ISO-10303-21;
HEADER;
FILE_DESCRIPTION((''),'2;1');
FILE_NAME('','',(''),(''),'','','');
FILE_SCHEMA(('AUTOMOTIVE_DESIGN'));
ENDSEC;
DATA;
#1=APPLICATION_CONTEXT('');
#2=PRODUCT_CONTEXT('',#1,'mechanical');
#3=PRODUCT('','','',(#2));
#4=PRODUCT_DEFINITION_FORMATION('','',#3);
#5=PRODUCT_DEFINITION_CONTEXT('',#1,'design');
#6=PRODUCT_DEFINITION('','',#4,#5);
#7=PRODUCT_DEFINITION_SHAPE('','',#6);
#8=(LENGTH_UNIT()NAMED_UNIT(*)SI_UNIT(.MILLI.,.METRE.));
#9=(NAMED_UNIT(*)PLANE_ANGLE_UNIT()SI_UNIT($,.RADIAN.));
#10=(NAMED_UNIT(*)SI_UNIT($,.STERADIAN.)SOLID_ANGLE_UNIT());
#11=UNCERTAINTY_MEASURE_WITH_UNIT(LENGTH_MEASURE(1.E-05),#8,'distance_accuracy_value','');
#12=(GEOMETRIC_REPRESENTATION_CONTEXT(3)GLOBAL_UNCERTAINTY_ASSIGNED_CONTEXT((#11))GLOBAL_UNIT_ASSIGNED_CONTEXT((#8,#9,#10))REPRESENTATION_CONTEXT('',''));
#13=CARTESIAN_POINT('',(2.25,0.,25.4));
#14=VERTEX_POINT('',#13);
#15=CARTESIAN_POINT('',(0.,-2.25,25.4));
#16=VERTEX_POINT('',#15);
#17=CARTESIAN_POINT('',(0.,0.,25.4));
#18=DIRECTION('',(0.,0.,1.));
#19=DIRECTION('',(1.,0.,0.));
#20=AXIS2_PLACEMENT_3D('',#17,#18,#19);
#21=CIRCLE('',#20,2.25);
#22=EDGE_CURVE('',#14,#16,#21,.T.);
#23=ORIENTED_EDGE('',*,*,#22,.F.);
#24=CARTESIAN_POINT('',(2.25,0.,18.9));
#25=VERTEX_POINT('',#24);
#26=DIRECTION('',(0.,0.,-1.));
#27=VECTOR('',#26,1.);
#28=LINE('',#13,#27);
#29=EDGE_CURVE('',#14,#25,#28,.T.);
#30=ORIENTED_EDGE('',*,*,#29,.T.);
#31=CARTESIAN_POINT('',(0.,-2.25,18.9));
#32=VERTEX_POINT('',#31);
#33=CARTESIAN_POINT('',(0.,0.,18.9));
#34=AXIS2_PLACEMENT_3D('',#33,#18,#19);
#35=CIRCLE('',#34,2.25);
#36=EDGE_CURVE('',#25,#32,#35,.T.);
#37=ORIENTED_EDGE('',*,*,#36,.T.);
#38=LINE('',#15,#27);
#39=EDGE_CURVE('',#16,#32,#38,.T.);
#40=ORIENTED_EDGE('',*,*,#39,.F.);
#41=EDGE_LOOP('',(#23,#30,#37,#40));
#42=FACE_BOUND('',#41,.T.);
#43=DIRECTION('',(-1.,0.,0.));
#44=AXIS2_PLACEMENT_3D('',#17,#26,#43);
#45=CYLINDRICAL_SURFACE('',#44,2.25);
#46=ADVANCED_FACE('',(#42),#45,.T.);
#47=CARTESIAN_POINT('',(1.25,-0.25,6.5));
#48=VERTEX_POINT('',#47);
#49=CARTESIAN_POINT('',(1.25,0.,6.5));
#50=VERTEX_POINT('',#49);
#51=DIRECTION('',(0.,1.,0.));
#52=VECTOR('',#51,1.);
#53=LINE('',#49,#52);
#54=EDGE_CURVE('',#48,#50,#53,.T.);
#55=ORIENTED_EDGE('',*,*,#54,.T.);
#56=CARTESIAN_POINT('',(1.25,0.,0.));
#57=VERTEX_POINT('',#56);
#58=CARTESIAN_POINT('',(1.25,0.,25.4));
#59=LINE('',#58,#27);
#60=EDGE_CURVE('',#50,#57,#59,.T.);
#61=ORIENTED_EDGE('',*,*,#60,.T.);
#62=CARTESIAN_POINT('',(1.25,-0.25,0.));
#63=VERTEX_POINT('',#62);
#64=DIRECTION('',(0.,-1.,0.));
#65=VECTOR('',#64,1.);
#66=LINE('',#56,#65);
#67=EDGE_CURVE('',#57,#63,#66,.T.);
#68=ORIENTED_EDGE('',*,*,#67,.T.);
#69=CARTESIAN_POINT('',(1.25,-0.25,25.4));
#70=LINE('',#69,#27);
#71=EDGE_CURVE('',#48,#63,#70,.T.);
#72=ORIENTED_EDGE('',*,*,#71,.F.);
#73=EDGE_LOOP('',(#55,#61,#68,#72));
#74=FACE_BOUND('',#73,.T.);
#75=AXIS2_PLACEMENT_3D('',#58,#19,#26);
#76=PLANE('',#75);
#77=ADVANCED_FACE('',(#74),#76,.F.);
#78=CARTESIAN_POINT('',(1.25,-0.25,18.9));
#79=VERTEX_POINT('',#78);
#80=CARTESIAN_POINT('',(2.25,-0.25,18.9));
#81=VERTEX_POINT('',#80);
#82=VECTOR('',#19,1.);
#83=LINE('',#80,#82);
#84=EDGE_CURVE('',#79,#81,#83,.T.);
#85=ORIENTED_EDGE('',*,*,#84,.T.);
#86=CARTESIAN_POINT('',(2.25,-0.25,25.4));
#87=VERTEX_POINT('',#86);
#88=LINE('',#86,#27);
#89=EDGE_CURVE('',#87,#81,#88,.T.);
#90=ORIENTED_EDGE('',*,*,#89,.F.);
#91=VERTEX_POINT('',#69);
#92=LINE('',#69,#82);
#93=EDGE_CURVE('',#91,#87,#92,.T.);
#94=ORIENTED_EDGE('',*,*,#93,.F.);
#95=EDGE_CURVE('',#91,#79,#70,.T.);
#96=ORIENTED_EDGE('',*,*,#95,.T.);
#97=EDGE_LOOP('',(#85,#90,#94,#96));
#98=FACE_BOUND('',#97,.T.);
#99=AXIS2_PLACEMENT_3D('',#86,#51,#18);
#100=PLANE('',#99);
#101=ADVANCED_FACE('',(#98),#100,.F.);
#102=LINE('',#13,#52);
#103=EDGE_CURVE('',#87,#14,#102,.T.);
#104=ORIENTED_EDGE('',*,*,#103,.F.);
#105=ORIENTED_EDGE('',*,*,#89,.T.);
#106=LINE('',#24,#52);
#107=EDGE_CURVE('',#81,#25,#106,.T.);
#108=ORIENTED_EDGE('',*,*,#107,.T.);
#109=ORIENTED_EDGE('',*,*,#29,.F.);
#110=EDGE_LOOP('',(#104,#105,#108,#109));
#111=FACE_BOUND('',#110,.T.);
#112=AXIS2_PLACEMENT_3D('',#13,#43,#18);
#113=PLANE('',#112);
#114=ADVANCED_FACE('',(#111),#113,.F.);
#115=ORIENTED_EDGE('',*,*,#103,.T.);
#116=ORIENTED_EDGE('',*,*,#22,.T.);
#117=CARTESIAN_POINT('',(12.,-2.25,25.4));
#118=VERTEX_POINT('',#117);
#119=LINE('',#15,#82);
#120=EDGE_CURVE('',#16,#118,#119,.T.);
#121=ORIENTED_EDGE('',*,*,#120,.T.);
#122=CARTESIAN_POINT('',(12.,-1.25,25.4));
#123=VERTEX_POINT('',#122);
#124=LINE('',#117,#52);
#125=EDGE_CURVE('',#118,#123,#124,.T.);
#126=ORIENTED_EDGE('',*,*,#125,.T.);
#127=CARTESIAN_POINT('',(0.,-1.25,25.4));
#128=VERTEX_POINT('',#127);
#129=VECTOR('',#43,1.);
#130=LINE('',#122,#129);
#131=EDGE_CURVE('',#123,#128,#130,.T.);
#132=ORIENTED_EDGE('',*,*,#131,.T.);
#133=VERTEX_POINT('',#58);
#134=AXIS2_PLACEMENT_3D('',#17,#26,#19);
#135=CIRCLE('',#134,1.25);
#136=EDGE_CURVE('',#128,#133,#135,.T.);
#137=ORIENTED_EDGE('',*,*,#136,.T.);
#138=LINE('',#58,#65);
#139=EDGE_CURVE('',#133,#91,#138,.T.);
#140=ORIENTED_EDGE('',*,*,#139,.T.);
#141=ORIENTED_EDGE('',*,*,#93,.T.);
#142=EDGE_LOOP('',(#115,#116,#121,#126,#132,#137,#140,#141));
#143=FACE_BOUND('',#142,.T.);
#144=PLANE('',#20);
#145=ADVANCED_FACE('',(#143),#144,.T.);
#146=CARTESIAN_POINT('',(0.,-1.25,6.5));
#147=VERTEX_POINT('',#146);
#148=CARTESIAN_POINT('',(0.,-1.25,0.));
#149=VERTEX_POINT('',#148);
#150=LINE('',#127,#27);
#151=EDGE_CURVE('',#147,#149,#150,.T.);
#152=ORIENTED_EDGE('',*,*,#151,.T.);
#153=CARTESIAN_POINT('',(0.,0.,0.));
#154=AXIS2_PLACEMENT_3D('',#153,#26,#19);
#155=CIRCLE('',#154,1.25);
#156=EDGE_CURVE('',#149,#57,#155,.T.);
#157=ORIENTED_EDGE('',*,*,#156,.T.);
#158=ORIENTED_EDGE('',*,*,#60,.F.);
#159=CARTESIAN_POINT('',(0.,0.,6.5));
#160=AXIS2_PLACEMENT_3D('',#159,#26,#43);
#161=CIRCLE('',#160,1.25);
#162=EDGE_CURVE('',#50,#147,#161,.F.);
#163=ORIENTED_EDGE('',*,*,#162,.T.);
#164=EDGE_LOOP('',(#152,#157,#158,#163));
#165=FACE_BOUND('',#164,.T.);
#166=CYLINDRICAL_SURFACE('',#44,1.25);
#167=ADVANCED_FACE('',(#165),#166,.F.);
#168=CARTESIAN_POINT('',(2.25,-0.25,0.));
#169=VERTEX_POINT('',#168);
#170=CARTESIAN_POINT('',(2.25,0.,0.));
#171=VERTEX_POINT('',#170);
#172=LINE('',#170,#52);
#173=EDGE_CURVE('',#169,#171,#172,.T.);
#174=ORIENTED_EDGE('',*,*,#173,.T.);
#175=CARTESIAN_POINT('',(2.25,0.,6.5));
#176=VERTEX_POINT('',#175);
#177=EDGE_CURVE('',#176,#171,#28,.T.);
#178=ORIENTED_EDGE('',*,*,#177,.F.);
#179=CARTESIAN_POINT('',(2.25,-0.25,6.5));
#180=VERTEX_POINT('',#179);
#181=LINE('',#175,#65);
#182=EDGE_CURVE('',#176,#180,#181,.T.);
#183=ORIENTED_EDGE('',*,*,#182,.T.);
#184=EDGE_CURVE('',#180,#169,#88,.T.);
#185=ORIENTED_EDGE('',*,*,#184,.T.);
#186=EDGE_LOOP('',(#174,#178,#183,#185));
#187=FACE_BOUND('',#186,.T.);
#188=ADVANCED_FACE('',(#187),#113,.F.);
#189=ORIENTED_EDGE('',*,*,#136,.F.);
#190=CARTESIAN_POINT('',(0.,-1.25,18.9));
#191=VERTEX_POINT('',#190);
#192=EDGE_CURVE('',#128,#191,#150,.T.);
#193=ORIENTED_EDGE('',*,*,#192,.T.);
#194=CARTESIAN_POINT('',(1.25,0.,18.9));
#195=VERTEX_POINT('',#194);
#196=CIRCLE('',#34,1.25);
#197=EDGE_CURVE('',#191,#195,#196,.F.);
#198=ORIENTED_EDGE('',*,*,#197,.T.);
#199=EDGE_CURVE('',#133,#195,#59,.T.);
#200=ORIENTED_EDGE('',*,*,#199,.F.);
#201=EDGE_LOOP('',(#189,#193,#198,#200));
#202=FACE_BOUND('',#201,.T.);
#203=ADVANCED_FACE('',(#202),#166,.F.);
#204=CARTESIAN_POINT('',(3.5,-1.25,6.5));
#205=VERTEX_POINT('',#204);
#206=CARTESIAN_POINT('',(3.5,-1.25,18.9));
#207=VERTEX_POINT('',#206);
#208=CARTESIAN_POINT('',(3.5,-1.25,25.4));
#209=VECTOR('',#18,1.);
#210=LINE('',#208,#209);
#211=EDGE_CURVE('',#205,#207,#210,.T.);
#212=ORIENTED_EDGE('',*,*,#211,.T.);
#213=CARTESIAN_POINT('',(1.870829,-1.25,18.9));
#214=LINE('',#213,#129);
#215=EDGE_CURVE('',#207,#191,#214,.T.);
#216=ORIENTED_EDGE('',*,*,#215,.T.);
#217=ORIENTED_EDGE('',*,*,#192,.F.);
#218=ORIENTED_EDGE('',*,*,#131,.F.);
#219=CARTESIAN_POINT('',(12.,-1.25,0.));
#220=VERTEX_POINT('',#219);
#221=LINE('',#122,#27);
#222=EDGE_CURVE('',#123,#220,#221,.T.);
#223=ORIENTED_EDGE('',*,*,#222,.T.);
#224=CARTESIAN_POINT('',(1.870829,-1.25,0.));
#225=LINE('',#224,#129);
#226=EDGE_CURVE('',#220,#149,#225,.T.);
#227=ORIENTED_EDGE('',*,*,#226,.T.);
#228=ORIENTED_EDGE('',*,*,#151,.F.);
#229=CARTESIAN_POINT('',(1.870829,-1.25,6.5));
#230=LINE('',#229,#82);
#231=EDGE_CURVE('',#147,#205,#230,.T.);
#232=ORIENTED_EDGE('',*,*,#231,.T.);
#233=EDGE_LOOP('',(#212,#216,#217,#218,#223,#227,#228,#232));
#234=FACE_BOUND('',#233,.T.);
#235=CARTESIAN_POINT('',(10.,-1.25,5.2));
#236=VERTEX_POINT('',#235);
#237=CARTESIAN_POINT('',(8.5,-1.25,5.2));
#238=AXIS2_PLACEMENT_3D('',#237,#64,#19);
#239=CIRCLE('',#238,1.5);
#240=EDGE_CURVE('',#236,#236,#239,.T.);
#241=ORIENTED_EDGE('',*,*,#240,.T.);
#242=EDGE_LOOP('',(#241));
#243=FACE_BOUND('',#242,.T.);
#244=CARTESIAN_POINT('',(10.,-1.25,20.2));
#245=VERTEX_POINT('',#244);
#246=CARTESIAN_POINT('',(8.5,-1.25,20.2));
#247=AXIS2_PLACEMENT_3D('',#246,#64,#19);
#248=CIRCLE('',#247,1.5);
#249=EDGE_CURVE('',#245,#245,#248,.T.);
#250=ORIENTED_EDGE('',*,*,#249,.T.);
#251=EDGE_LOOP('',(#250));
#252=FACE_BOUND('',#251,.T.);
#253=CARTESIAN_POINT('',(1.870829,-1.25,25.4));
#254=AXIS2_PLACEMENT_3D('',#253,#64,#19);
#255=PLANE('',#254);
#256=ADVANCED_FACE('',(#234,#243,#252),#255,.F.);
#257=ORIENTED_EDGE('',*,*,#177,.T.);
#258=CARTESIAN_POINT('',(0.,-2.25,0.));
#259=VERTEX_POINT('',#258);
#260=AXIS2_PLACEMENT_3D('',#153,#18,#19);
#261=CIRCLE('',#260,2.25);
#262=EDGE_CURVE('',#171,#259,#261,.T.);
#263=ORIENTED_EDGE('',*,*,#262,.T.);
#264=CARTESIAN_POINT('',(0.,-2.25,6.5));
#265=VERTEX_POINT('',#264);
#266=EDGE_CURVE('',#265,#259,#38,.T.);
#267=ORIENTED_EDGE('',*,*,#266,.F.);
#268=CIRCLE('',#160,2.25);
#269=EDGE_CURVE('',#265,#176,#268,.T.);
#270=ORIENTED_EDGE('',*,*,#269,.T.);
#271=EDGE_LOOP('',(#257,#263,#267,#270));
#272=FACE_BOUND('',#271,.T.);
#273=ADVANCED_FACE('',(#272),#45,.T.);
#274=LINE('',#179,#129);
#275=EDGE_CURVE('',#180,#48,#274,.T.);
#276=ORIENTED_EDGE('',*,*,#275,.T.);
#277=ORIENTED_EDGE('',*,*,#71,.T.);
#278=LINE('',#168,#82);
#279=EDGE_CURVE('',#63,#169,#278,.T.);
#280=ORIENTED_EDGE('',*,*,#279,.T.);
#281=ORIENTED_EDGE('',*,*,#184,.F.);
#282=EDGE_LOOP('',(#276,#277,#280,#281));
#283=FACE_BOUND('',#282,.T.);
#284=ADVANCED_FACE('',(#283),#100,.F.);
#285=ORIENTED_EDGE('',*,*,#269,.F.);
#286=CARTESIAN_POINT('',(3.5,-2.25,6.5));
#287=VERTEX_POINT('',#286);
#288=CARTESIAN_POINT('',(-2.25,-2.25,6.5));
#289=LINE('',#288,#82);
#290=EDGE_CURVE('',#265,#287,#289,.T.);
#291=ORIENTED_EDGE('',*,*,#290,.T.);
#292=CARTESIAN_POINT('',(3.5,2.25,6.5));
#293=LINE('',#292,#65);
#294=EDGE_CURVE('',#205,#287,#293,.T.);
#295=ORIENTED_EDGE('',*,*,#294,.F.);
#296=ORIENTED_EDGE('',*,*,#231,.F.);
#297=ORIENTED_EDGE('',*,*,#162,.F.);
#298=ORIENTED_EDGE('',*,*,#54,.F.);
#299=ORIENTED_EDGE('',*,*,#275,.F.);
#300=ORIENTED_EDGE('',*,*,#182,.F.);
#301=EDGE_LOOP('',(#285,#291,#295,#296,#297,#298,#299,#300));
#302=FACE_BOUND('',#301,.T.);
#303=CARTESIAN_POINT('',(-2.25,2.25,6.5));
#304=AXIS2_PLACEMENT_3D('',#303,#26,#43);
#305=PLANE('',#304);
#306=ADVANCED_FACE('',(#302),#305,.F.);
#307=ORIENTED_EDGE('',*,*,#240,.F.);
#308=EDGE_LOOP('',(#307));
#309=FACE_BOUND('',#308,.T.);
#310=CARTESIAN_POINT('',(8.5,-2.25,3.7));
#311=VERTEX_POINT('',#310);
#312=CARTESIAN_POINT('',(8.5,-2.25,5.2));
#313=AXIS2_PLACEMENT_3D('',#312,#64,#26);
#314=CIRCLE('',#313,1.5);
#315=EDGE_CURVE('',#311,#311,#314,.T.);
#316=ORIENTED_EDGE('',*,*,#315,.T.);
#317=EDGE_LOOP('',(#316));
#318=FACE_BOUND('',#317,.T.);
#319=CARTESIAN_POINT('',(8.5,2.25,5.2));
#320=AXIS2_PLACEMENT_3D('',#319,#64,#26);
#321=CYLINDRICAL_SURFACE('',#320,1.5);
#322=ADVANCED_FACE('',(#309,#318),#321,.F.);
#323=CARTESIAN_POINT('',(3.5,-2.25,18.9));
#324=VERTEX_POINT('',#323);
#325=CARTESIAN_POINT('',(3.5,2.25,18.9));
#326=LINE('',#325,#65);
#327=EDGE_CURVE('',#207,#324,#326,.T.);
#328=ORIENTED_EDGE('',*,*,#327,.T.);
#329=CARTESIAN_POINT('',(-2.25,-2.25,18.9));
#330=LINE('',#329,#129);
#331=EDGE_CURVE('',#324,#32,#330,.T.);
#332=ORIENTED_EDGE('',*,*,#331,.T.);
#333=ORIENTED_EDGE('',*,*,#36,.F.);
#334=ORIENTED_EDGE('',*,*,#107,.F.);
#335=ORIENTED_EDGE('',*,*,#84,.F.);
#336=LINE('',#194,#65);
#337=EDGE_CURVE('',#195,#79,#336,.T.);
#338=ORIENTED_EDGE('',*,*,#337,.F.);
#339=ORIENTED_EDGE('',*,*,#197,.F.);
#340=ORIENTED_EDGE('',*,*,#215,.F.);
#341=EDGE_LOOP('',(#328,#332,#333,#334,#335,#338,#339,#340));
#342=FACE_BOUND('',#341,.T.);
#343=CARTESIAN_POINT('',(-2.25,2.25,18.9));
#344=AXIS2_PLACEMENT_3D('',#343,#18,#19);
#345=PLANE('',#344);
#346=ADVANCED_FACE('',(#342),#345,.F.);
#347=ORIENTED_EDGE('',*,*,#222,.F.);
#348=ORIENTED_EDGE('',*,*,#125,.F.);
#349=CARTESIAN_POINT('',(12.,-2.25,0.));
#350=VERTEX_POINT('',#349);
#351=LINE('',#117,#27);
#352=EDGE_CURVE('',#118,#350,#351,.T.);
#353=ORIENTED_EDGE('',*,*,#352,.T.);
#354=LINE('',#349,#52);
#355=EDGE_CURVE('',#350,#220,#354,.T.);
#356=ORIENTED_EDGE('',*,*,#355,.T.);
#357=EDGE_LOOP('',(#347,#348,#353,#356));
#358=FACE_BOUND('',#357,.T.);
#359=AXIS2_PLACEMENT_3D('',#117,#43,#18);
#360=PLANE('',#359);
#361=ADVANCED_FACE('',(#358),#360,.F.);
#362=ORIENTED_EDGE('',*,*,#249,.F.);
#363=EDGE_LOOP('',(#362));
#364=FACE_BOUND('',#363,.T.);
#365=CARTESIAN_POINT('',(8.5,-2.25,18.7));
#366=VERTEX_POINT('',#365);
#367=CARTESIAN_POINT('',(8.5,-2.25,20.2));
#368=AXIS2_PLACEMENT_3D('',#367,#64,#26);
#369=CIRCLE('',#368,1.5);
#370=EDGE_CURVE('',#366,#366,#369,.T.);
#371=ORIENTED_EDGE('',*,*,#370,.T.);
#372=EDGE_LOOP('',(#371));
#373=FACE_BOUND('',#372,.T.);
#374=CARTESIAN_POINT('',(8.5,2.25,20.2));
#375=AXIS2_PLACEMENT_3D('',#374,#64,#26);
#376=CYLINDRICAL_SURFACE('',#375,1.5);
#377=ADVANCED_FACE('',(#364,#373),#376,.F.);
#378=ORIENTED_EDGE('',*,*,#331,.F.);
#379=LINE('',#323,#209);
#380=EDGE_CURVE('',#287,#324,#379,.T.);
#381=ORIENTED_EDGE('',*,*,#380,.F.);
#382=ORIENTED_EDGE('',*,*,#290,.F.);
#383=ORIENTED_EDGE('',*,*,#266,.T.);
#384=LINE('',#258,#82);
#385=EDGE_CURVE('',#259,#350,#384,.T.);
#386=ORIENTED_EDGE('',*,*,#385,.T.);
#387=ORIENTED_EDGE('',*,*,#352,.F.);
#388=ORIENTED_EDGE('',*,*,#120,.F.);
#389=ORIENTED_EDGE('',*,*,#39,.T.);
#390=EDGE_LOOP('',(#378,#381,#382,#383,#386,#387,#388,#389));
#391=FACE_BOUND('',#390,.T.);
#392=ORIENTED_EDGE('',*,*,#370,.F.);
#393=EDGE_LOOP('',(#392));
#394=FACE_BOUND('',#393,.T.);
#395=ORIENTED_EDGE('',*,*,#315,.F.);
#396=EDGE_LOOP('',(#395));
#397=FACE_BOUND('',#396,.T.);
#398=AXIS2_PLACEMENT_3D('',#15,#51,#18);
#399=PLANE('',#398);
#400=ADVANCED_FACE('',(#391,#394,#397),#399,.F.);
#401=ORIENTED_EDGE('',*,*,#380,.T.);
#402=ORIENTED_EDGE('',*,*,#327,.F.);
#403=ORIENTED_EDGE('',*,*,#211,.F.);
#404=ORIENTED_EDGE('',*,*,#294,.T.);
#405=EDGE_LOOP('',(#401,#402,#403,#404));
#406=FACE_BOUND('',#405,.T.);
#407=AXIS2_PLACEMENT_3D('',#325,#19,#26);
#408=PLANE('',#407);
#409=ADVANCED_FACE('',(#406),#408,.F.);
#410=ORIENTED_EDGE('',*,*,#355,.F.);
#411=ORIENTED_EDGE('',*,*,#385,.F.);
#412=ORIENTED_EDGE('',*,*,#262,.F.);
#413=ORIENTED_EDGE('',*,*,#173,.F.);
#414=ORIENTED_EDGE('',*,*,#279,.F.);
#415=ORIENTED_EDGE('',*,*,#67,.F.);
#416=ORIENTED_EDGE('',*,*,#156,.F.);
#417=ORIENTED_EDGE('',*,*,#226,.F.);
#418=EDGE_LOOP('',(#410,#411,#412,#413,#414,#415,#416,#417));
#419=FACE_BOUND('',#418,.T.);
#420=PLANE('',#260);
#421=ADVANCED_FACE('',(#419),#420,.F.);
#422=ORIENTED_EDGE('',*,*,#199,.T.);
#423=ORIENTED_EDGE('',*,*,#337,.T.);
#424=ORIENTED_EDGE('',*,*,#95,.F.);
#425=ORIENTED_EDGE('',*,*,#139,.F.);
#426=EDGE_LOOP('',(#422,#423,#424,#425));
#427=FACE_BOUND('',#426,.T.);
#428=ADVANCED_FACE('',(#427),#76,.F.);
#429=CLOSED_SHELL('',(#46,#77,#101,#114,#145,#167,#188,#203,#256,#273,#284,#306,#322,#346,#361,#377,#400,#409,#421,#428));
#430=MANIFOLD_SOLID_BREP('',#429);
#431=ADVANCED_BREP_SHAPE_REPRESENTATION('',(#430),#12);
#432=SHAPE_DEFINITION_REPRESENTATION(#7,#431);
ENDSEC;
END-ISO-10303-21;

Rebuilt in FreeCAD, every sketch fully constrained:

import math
import FreeCAD as App
import Part
import Sketcher

V = App.Vector


def add_polygon(sketch, points):
    """Adds a closed chain of lines whose ends are joined by coincident constraints."""
    first, n = sketch.GeometryCount, len(points)
    for a, b in zip(points, points[1:] + points[:1]):
        sketch.addGeometry(Part.LineSegment(App.Vector(*a, 0), App.Vector(*b, 0)), False)
    for i in range(n):
        sketch.addConstraint(Sketcher.Constraint("Coincident", first + i, 2, first + (i + 1) % n, 1))

doc = App.newDocument("Part")
params = doc.addObject("Spreadsheet::Sheet", "Params")
for row, (alias, value) in enumerate([
    ("sketch1_width", "12 mm"),
    ("sketch1_width2", "1 mm"),
    ("sketch1_radius", "1.25 mm"),
    ("pad1_length", "25.4 mm"),
    ("sketch2_diameter", "3 mm"),
    ("sketch2_height", "12.4 mm"),
    ("sketch2_width", "5.75 mm"),
], start=1):
    params.set(f"A{row}", alias)
    params.set(f"B{row}", "=" + value)
    params.setAlias(f"B{row}", alias)

body = doc.addObject("PartDesign::Body", "Body")

# Sketch on XY plane
sketch1 = body.newObject("Sketcher::SketchObject", "Sketch")
sketch1.AttachmentSupport = (doc.getObject("XY_Plane"), [""])
sketch1.MapMode = "FlatFace"
sketch1.addGeometry([
    Part.LineSegment(V(0, -2.25, 0), V(12, -2.25, 0)),  # 0
    Part.LineSegment(V(12, -2.25, 0), V(12, -1.25, 0)),  # 1
    Part.LineSegment(V(12, -1.25, 0), V(0, -1.25, 0)),  # 2
    Part.ArcOfCircle(Part.Circle(V(0, 0, 0), V(0, 0, 1), 1.25), math.radians(0), math.radians(270)),  # 3
    Part.LineSegment(V(1.25, 0, 0), V(1.25, -0.25, 0)),  # 4
    Part.LineSegment(V(1.25, -0.25, 0), V(2.25, -0.25, 0)),  # 5
    Part.LineSegment(V(2.25, -0.25, 0), V(2.25, 0, 0)),  # 6
    Part.ArcOfCircle(Part.Circle(V(0, 0, 0), V(0, 0, 1), 2.25), math.radians(0), math.radians(270)),  # 7
], False)
sketch1.addConstraint([
    Sketcher.Constraint("Coincident", 0, 2, 1, 1),
    Sketcher.Constraint("Coincident", 1, 2, 2, 1),
    Sketcher.Constraint("Tangent", 2, 2, 3, 2),
    Sketcher.Constraint("Tangent", 3, 1, 4, 1),
    Sketcher.Constraint("Coincident", 4, 2, 5, 1),
    Sketcher.Constraint("Coincident", 5, 2, 6, 1),
    Sketcher.Constraint("Tangent", 6, 2, 7, 1),
    Sketcher.Constraint("Tangent", 7, 2, 0, 1),
    Sketcher.Constraint("Horizontal", 0),
    Sketcher.Constraint("Vertical", 1),
    Sketcher.Constraint("Horizontal", 2),
    Sketcher.Constraint("Vertical", 4),
    Sketcher.Constraint("Horizontal", 5),
    Sketcher.Constraint("Vertical", 6),
    Sketcher.Constraint("Coincident", 3, 3, -1, 1),
    Sketcher.Constraint("Coincident", 7, 3, -1, 1),
    Sketcher.Constraint("DistanceX", 0, 1, 0, 2, 12.0),
    Sketcher.Constraint("DistanceX", 5, 1, 5, 2, 1.0),
    Sketcher.Constraint("Radius", 3, 1.25),
    Sketcher.Constraint("DistanceY", 2, 2, 4, 2, 1.0),
])
sketch1.setExpression("Constraints[16]", "Params.sketch1_width")
sketch1.setExpression("Constraints[17]", "Params.sketch1_width2")
sketch1.setExpression("Constraints[18]", "Params.sketch1_radius")
pad1 = body.newObject("PartDesign::Pad", "Pad")
pad1.Profile = sketch1
pad1.setExpression("Length", "Params.pad1_length")

# Sketch on XZ plane
sketch2 = body.newObject("Sketcher::SketchObject", "Sketch001")
sketch2.AttachmentSupport = (doc.getObject("XZ_Plane"), [""])
sketch2.MapMode = "FlatFace"
sketch2.AttachmentOffset = App.Placement(V(0, 0, 2.25), App.Rotation())
sketch2.addGeometry(Part.Circle(V(8.5, 20.2, 0), V(0, 0, 1), 1.5), False)  # 0
sketch2.addGeometry(Part.Circle(V(8.5, 5.2, 0), V(0, 0, 1), 1.5), False)  # 1
add_polygon(sketch2, [(-2.2, 18.9), (-2.2, 6.5), (3.5, 6.5), (3.5, 18.9)])  # lines 2-5
sketch2.addConstraint([
    Sketcher.Constraint("Vertical", 2),
    Sketcher.Constraint("Horizontal", 3),
    Sketcher.Constraint("Vertical", 4),
    Sketcher.Constraint("Horizontal", 5),
    Sketcher.Constraint("Equal", 0, 1),
    Sketcher.Constraint("Vertical", 0, 3, 1, 3),
    Sketcher.Constraint("Diameter", 0, 3.0),
    Sketcher.Constraint("DistanceY", 2, 2, 2, 1, 12.4),
    Sketcher.Constraint("DistanceY", 1, 3, 0, 3, 15.0),
    Sketcher.Constraint("DistanceX", 3, 2, 1, 3, 5.0),
    Sketcher.Constraint("DistanceX", 3, 1, 3, 2, 5.75),
    Sketcher.Constraint("DistanceX", -1, 1, 0, 3, 8.5),
    Sketcher.Constraint("DistanceY", -1, 1, 0, 3, 20.2),
    Sketcher.Constraint("DistanceY", -1, 1, 2, 2, 6.5),
])
sketch2.setExpression("Constraints[10]", "Params.sketch2_diameter")
sketch2.setExpression("Constraints[11]", "Params.sketch2_height")
sketch2.setExpression("Constraints[14]", "Params.sketch2_width")
pocket1 = body.newObject("PartDesign::Pocket", "Pocket")
pocket1.Profile = sketch2
pocket1.Type = "ThroughAll"

doc.recompute()
